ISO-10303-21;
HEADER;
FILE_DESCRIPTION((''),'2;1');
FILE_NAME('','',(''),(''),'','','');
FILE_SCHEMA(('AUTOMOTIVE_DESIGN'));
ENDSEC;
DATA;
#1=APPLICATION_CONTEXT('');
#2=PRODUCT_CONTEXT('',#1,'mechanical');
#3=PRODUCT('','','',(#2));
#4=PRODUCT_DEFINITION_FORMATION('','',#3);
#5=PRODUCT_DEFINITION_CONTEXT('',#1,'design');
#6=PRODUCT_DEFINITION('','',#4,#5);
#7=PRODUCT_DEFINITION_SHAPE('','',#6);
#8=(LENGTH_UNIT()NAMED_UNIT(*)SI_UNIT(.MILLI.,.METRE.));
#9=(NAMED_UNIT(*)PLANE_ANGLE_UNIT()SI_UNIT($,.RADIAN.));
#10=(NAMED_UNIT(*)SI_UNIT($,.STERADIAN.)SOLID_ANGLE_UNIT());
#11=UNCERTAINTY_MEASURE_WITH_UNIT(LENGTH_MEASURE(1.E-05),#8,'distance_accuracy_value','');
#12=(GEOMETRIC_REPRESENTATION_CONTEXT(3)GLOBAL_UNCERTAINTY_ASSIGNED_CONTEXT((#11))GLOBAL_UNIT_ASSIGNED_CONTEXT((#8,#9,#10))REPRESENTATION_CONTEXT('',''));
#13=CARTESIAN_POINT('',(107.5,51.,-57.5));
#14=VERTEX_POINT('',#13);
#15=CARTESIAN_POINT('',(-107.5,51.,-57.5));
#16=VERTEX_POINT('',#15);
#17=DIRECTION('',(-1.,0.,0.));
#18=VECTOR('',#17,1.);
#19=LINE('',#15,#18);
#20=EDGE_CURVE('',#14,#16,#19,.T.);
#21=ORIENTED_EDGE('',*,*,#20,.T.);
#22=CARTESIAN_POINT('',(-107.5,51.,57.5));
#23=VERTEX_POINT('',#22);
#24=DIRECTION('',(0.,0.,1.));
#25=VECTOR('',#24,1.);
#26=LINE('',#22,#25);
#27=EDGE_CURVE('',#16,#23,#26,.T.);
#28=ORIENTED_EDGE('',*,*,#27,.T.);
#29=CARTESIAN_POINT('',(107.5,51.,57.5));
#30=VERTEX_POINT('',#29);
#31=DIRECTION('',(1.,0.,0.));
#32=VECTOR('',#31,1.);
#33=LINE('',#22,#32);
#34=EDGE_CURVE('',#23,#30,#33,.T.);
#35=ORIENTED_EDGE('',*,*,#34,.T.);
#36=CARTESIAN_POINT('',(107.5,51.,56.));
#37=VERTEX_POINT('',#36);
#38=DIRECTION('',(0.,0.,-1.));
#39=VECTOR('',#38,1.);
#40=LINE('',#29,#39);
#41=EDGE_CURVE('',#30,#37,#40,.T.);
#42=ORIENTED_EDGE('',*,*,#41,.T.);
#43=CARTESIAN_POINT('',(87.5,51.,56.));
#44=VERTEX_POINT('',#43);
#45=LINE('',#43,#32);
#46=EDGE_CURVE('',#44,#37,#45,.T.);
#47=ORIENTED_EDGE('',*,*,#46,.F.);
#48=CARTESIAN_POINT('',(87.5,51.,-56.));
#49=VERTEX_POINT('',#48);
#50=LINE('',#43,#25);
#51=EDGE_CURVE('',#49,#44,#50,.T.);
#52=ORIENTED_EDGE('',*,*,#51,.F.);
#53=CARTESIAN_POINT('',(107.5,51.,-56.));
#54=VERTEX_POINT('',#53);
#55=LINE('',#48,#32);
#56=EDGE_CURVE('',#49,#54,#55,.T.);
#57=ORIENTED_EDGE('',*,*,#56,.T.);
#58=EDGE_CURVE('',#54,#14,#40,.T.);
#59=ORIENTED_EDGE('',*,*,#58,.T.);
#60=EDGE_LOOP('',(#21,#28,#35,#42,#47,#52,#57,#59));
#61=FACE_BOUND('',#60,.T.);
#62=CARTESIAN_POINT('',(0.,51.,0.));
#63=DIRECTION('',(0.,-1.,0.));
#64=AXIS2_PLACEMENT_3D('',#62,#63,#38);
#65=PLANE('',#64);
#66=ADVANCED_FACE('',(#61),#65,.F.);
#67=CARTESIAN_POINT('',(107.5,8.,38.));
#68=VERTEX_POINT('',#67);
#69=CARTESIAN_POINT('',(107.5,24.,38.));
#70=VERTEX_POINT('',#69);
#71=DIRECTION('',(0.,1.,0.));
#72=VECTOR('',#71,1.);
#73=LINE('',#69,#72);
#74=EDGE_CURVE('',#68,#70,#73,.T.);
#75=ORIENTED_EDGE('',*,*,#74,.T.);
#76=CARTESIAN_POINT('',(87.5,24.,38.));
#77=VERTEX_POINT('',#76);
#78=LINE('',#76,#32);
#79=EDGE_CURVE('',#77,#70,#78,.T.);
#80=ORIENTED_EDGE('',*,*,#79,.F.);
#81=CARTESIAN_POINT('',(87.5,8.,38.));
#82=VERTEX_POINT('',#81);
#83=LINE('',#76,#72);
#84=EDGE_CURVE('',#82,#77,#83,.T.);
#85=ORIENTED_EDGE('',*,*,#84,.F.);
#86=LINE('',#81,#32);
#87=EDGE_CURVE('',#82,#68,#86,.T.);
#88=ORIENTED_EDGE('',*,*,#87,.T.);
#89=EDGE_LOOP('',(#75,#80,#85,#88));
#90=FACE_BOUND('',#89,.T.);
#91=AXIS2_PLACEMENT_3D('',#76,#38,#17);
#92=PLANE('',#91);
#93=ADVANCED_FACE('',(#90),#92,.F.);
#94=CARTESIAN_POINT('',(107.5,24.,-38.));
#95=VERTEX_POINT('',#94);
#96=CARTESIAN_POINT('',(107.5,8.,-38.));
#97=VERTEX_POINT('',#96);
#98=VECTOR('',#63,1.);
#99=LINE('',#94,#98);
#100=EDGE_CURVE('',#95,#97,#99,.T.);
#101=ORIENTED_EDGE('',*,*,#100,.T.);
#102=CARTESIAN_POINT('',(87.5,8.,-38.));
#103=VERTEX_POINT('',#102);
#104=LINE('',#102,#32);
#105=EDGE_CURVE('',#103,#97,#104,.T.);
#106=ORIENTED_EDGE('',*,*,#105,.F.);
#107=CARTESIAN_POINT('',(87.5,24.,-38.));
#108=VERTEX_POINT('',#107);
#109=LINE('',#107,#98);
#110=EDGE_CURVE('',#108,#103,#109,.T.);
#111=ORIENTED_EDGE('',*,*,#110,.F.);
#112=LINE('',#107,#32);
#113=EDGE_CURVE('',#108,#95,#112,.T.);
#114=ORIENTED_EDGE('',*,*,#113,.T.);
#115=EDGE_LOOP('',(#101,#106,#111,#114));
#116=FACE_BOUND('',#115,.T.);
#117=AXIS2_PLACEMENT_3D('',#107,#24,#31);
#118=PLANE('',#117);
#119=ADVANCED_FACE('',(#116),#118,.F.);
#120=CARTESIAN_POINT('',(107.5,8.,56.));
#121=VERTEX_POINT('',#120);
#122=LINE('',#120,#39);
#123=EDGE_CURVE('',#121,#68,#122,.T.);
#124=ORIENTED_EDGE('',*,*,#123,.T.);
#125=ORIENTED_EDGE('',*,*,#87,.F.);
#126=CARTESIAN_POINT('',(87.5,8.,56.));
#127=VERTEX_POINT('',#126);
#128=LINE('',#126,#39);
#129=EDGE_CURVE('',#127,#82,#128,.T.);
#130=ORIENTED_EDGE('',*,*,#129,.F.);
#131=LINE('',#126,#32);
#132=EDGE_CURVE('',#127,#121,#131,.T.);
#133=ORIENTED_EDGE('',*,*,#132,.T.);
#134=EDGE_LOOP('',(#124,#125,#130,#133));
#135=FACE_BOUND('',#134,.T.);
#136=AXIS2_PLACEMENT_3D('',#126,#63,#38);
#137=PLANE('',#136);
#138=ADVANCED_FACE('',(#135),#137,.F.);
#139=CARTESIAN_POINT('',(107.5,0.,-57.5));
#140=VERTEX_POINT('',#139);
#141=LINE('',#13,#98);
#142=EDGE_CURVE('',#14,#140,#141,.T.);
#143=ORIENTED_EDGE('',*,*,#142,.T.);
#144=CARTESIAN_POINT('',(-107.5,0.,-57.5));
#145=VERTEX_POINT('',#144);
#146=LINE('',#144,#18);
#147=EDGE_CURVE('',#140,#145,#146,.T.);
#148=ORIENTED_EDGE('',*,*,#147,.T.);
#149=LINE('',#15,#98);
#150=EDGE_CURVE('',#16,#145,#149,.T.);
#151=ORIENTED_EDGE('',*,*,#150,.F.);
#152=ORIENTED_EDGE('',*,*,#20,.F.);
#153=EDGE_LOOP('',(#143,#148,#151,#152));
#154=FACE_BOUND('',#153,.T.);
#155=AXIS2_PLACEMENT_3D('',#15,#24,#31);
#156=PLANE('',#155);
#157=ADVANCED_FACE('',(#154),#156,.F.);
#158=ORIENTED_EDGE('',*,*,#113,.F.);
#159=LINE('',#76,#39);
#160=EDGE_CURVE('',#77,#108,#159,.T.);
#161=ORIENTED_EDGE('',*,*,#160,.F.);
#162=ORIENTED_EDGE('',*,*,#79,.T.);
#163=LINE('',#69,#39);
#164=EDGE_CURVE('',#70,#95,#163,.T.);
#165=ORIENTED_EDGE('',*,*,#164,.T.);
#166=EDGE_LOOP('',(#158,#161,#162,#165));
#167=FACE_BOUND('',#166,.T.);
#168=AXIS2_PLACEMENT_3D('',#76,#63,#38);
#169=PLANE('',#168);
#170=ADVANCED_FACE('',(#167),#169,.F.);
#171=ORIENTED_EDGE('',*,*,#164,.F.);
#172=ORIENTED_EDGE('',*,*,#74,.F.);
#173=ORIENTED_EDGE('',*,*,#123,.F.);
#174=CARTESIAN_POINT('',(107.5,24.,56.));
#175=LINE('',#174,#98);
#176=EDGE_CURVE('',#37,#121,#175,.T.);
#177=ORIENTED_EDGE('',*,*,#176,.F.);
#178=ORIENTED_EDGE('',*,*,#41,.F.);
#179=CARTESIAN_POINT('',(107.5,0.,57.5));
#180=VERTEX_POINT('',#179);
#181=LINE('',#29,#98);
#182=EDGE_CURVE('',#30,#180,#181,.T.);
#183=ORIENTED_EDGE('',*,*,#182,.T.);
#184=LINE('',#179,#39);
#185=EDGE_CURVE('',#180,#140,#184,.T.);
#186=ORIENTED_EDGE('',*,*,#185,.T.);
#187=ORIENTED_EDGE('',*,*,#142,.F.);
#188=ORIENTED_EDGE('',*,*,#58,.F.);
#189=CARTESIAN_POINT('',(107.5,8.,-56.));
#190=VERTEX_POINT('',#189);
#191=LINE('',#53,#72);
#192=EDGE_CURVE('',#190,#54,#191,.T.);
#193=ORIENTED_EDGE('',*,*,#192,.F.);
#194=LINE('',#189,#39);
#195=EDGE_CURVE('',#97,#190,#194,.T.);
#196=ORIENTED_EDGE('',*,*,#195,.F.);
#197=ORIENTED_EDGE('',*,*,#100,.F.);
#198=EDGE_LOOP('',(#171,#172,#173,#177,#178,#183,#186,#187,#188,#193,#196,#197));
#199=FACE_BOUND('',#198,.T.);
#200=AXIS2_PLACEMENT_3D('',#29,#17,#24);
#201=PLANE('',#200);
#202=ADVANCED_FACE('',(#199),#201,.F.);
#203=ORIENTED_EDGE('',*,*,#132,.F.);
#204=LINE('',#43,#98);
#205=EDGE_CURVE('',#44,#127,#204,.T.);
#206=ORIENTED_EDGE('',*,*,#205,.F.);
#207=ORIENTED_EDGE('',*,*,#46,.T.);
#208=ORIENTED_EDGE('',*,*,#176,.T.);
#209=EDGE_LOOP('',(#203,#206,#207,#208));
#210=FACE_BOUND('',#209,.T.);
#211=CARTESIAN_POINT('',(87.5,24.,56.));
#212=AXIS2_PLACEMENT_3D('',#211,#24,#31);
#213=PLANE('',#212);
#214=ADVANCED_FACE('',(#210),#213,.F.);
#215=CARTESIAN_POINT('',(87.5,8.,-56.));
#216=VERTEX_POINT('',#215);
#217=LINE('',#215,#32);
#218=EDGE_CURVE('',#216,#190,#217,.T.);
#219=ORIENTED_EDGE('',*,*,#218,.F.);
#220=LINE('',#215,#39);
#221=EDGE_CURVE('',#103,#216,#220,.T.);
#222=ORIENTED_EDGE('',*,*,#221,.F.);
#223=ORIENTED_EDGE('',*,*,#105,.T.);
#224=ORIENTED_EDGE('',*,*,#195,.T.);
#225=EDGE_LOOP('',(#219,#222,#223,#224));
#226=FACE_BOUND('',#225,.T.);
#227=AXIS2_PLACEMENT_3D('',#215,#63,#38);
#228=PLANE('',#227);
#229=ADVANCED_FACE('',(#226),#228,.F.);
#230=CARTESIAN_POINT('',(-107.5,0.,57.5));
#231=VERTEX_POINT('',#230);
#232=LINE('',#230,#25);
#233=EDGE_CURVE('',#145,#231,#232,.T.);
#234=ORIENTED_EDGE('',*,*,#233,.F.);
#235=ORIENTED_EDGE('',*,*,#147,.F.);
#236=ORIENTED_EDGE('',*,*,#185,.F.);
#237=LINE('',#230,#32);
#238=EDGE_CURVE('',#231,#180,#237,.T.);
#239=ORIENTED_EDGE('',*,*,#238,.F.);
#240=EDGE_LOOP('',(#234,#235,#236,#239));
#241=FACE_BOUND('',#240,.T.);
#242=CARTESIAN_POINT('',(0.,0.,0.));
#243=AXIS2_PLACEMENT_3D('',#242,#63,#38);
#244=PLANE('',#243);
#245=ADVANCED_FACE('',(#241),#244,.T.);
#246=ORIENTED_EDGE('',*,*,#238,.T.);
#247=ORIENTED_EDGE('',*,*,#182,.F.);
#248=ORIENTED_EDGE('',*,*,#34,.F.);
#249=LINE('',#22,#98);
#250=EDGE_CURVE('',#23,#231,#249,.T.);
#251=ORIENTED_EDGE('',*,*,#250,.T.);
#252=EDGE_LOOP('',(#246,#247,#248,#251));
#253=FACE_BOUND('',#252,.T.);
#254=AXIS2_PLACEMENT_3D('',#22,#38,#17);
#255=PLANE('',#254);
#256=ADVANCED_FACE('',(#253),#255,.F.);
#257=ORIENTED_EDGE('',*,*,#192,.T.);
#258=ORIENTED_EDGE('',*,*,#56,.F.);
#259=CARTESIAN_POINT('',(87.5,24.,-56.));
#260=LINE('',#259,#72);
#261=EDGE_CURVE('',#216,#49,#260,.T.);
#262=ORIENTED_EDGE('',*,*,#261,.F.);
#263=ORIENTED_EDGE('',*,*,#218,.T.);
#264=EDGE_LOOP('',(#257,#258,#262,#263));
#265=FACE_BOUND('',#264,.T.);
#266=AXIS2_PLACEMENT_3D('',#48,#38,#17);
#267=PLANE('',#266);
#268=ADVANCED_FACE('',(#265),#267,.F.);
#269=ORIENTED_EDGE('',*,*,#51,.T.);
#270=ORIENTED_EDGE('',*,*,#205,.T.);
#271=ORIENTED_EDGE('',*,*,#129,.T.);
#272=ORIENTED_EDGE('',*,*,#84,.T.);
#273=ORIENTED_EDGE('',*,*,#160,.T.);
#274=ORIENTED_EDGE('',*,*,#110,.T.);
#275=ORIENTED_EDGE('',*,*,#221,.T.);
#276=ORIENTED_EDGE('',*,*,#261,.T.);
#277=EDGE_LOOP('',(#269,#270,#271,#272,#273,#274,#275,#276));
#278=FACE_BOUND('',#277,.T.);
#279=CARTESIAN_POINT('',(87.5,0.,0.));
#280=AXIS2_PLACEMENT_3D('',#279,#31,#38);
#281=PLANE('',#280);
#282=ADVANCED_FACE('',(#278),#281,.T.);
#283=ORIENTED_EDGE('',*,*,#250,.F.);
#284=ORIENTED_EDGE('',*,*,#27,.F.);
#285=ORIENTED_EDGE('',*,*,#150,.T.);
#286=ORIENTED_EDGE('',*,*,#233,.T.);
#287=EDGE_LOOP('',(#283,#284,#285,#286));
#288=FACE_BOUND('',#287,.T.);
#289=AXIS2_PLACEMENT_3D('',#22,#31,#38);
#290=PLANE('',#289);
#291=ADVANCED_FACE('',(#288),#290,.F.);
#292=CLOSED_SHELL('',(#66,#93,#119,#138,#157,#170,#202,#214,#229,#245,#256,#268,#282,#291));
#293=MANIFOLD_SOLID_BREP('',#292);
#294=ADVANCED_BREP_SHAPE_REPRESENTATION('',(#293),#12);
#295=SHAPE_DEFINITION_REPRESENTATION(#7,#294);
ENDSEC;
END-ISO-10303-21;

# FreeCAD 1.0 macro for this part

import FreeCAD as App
import Part
import Sketcher
from FreeCAD import Vector
Q = App.Units.Quantity

doc = App.newDocument("Part")
body = doc.addObject("PartDesign::Body", "Body")

sketch1 = doc.addObject("Sketcher::SketchObject", "Sketch")
body.addObject(sketch1)
sketch1.AttachmentSupport = (doc.XZ_Plane, [""])
sketch1.MapMode = "FlatFace"
sketch1.addGeometry([
    Part.LineSegment(Vector(-108, -58, 0), Vector(-108, 58, 0)),
    Part.LineSegment(Vector(-108, 58, 0), Vector(108, 58, 0)),
    Part.LineSegment(Vector(108, 58, 0), Vector(108, -58, 0)),
    Part.LineSegment(Vector(108, -58, 0), Vector(-108, -58, 0)),
], False)
sketch1.addConstraint([
    Sketcher.Constraint("Coincident", 0, 2, 1, 1),
    Sketcher.Constraint("Coincident", 1, 2, 2, 1),
    Sketcher.Constraint("Coincident", 2, 2, 3, 1),
    Sketcher.Constraint("Coincident", 3, 2, 0, 1),
    Sketcher.Constraint("Vertical", 0),
    Sketcher.Constraint("Horizontal", 1),
    Sketcher.Constraint("Vertical", 2),
    Sketcher.Constraint("Horizontal", 3),
    Sketcher.Constraint("Symmetric", 0, 2, 2, 2, -1, 1),
    Sketcher.Constraint("DistanceX", 1, 1, 1, 2, Q("215 mm")),
    Sketcher.Constraint("DistanceY", 0, 1, 0, 2, Q("115 mm")),
])
pad1 = doc.addObject("PartDesign::Pad", "Pad")
body.addObject(pad1)
pad1.Profile = sketch1
pad1.Length = 51
pad1.Reversed = True

sketch2 = doc.addObject("Sketcher::SketchObject", "Sketch001")
body.addObject(sketch2)
sketch2.AttachmentSupport = (doc.YZ_Plane, [""])
sketch2.MapMode = "FlatFace"
sketch2.AttachmentOffset = App.Placement(Vector(0, 0, 107.5), App.Rotation())
sketch2.addGeometry([
    Part.LineSegment(Vector(51, -56, 0), Vector(51, 56, 0)),
    Part.LineSegment(Vector(51, 56, 0), Vector(8, 56, 0)),
    Part.LineSegment(Vector(8, 56, 0), Vector(8, 38, 0)),
    Part.LineSegment(Vector(8, 38, 0), Vector(24, 38, 0)),
    Part.LineSegment(Vector(24, 38, 0), Vector(24, -38, 0)),
    Part.LineSegment(Vector(24, -38, 0), Vector(8, -38, 0)),
    Part.LineSegment(Vector(8, -38, 0), Vector(8, -56, 0)),
    Part.LineSegment(Vector(8, -56, 0), Vector(51, -56, 0)),
], False)
sketch2.addConstraint([
    Sketcher.Constraint("Coincident", 0, 2, 1, 1),
    Sketcher.Constraint("Coincident", 1, 2, 2, 1),
    Sketcher.Constraint("Coincident", 2, 2, 3, 1),
    Sketcher.Constraint("Coincident", 3, 2, 4, 1),
    Sketcher.Constraint("Coincident", 4, 2, 5, 1),
    Sketcher.Constraint("Coincident", 5, 2, 6, 1),
    Sketcher.Constraint("Coincident", 6, 2, 7, 1),
    Sketcher.Constraint("Coincident", 7, 2, 0, 1),
    Sketcher.Constraint("Vertical", 0),
    Sketcher.Constraint("Horizontal", 1),
    Sketcher.Constraint("Vertical", 2),
    Sketcher.Constraint("Horizontal", 3),
    Sketcher.Constraint("Vertical", 4),
    Sketcher.Constraint("Horizontal", 5),
    Sketcher.Constraint("Vertical", 6),
    Sketcher.Constraint("Horizontal", 7),
    Sketcher.Constraint("Symmetric", 2, 2, 5, 2, -1),
    Sketcher.Constraint("Equal", 2, 6),
    Sketcher.Constraint("DistanceX", 1, 2, 1, 1, Q("43 mm")),
    Sketcher.Constraint("DistanceX", 3, 1, 3, 2, Q("16 mm")),
    Sketcher.Constraint("DistanceY", 0, 1, 0, 2, Q("112 mm")),
    Sketcher.Constraint("DistanceY", 2, 2, 2, 1, Q("18 mm")),
    Sketcher.Constraint("DistanceX", -1, 1, 0, 2, Q("51 mm")),
])
pocket1 = doc.addObject("PartDesign::Pocket", "Pocket")
body.addObject(pocket1)
pocket1.Profile = sketch2
pocket1.Length = 20

doc.recompute()
